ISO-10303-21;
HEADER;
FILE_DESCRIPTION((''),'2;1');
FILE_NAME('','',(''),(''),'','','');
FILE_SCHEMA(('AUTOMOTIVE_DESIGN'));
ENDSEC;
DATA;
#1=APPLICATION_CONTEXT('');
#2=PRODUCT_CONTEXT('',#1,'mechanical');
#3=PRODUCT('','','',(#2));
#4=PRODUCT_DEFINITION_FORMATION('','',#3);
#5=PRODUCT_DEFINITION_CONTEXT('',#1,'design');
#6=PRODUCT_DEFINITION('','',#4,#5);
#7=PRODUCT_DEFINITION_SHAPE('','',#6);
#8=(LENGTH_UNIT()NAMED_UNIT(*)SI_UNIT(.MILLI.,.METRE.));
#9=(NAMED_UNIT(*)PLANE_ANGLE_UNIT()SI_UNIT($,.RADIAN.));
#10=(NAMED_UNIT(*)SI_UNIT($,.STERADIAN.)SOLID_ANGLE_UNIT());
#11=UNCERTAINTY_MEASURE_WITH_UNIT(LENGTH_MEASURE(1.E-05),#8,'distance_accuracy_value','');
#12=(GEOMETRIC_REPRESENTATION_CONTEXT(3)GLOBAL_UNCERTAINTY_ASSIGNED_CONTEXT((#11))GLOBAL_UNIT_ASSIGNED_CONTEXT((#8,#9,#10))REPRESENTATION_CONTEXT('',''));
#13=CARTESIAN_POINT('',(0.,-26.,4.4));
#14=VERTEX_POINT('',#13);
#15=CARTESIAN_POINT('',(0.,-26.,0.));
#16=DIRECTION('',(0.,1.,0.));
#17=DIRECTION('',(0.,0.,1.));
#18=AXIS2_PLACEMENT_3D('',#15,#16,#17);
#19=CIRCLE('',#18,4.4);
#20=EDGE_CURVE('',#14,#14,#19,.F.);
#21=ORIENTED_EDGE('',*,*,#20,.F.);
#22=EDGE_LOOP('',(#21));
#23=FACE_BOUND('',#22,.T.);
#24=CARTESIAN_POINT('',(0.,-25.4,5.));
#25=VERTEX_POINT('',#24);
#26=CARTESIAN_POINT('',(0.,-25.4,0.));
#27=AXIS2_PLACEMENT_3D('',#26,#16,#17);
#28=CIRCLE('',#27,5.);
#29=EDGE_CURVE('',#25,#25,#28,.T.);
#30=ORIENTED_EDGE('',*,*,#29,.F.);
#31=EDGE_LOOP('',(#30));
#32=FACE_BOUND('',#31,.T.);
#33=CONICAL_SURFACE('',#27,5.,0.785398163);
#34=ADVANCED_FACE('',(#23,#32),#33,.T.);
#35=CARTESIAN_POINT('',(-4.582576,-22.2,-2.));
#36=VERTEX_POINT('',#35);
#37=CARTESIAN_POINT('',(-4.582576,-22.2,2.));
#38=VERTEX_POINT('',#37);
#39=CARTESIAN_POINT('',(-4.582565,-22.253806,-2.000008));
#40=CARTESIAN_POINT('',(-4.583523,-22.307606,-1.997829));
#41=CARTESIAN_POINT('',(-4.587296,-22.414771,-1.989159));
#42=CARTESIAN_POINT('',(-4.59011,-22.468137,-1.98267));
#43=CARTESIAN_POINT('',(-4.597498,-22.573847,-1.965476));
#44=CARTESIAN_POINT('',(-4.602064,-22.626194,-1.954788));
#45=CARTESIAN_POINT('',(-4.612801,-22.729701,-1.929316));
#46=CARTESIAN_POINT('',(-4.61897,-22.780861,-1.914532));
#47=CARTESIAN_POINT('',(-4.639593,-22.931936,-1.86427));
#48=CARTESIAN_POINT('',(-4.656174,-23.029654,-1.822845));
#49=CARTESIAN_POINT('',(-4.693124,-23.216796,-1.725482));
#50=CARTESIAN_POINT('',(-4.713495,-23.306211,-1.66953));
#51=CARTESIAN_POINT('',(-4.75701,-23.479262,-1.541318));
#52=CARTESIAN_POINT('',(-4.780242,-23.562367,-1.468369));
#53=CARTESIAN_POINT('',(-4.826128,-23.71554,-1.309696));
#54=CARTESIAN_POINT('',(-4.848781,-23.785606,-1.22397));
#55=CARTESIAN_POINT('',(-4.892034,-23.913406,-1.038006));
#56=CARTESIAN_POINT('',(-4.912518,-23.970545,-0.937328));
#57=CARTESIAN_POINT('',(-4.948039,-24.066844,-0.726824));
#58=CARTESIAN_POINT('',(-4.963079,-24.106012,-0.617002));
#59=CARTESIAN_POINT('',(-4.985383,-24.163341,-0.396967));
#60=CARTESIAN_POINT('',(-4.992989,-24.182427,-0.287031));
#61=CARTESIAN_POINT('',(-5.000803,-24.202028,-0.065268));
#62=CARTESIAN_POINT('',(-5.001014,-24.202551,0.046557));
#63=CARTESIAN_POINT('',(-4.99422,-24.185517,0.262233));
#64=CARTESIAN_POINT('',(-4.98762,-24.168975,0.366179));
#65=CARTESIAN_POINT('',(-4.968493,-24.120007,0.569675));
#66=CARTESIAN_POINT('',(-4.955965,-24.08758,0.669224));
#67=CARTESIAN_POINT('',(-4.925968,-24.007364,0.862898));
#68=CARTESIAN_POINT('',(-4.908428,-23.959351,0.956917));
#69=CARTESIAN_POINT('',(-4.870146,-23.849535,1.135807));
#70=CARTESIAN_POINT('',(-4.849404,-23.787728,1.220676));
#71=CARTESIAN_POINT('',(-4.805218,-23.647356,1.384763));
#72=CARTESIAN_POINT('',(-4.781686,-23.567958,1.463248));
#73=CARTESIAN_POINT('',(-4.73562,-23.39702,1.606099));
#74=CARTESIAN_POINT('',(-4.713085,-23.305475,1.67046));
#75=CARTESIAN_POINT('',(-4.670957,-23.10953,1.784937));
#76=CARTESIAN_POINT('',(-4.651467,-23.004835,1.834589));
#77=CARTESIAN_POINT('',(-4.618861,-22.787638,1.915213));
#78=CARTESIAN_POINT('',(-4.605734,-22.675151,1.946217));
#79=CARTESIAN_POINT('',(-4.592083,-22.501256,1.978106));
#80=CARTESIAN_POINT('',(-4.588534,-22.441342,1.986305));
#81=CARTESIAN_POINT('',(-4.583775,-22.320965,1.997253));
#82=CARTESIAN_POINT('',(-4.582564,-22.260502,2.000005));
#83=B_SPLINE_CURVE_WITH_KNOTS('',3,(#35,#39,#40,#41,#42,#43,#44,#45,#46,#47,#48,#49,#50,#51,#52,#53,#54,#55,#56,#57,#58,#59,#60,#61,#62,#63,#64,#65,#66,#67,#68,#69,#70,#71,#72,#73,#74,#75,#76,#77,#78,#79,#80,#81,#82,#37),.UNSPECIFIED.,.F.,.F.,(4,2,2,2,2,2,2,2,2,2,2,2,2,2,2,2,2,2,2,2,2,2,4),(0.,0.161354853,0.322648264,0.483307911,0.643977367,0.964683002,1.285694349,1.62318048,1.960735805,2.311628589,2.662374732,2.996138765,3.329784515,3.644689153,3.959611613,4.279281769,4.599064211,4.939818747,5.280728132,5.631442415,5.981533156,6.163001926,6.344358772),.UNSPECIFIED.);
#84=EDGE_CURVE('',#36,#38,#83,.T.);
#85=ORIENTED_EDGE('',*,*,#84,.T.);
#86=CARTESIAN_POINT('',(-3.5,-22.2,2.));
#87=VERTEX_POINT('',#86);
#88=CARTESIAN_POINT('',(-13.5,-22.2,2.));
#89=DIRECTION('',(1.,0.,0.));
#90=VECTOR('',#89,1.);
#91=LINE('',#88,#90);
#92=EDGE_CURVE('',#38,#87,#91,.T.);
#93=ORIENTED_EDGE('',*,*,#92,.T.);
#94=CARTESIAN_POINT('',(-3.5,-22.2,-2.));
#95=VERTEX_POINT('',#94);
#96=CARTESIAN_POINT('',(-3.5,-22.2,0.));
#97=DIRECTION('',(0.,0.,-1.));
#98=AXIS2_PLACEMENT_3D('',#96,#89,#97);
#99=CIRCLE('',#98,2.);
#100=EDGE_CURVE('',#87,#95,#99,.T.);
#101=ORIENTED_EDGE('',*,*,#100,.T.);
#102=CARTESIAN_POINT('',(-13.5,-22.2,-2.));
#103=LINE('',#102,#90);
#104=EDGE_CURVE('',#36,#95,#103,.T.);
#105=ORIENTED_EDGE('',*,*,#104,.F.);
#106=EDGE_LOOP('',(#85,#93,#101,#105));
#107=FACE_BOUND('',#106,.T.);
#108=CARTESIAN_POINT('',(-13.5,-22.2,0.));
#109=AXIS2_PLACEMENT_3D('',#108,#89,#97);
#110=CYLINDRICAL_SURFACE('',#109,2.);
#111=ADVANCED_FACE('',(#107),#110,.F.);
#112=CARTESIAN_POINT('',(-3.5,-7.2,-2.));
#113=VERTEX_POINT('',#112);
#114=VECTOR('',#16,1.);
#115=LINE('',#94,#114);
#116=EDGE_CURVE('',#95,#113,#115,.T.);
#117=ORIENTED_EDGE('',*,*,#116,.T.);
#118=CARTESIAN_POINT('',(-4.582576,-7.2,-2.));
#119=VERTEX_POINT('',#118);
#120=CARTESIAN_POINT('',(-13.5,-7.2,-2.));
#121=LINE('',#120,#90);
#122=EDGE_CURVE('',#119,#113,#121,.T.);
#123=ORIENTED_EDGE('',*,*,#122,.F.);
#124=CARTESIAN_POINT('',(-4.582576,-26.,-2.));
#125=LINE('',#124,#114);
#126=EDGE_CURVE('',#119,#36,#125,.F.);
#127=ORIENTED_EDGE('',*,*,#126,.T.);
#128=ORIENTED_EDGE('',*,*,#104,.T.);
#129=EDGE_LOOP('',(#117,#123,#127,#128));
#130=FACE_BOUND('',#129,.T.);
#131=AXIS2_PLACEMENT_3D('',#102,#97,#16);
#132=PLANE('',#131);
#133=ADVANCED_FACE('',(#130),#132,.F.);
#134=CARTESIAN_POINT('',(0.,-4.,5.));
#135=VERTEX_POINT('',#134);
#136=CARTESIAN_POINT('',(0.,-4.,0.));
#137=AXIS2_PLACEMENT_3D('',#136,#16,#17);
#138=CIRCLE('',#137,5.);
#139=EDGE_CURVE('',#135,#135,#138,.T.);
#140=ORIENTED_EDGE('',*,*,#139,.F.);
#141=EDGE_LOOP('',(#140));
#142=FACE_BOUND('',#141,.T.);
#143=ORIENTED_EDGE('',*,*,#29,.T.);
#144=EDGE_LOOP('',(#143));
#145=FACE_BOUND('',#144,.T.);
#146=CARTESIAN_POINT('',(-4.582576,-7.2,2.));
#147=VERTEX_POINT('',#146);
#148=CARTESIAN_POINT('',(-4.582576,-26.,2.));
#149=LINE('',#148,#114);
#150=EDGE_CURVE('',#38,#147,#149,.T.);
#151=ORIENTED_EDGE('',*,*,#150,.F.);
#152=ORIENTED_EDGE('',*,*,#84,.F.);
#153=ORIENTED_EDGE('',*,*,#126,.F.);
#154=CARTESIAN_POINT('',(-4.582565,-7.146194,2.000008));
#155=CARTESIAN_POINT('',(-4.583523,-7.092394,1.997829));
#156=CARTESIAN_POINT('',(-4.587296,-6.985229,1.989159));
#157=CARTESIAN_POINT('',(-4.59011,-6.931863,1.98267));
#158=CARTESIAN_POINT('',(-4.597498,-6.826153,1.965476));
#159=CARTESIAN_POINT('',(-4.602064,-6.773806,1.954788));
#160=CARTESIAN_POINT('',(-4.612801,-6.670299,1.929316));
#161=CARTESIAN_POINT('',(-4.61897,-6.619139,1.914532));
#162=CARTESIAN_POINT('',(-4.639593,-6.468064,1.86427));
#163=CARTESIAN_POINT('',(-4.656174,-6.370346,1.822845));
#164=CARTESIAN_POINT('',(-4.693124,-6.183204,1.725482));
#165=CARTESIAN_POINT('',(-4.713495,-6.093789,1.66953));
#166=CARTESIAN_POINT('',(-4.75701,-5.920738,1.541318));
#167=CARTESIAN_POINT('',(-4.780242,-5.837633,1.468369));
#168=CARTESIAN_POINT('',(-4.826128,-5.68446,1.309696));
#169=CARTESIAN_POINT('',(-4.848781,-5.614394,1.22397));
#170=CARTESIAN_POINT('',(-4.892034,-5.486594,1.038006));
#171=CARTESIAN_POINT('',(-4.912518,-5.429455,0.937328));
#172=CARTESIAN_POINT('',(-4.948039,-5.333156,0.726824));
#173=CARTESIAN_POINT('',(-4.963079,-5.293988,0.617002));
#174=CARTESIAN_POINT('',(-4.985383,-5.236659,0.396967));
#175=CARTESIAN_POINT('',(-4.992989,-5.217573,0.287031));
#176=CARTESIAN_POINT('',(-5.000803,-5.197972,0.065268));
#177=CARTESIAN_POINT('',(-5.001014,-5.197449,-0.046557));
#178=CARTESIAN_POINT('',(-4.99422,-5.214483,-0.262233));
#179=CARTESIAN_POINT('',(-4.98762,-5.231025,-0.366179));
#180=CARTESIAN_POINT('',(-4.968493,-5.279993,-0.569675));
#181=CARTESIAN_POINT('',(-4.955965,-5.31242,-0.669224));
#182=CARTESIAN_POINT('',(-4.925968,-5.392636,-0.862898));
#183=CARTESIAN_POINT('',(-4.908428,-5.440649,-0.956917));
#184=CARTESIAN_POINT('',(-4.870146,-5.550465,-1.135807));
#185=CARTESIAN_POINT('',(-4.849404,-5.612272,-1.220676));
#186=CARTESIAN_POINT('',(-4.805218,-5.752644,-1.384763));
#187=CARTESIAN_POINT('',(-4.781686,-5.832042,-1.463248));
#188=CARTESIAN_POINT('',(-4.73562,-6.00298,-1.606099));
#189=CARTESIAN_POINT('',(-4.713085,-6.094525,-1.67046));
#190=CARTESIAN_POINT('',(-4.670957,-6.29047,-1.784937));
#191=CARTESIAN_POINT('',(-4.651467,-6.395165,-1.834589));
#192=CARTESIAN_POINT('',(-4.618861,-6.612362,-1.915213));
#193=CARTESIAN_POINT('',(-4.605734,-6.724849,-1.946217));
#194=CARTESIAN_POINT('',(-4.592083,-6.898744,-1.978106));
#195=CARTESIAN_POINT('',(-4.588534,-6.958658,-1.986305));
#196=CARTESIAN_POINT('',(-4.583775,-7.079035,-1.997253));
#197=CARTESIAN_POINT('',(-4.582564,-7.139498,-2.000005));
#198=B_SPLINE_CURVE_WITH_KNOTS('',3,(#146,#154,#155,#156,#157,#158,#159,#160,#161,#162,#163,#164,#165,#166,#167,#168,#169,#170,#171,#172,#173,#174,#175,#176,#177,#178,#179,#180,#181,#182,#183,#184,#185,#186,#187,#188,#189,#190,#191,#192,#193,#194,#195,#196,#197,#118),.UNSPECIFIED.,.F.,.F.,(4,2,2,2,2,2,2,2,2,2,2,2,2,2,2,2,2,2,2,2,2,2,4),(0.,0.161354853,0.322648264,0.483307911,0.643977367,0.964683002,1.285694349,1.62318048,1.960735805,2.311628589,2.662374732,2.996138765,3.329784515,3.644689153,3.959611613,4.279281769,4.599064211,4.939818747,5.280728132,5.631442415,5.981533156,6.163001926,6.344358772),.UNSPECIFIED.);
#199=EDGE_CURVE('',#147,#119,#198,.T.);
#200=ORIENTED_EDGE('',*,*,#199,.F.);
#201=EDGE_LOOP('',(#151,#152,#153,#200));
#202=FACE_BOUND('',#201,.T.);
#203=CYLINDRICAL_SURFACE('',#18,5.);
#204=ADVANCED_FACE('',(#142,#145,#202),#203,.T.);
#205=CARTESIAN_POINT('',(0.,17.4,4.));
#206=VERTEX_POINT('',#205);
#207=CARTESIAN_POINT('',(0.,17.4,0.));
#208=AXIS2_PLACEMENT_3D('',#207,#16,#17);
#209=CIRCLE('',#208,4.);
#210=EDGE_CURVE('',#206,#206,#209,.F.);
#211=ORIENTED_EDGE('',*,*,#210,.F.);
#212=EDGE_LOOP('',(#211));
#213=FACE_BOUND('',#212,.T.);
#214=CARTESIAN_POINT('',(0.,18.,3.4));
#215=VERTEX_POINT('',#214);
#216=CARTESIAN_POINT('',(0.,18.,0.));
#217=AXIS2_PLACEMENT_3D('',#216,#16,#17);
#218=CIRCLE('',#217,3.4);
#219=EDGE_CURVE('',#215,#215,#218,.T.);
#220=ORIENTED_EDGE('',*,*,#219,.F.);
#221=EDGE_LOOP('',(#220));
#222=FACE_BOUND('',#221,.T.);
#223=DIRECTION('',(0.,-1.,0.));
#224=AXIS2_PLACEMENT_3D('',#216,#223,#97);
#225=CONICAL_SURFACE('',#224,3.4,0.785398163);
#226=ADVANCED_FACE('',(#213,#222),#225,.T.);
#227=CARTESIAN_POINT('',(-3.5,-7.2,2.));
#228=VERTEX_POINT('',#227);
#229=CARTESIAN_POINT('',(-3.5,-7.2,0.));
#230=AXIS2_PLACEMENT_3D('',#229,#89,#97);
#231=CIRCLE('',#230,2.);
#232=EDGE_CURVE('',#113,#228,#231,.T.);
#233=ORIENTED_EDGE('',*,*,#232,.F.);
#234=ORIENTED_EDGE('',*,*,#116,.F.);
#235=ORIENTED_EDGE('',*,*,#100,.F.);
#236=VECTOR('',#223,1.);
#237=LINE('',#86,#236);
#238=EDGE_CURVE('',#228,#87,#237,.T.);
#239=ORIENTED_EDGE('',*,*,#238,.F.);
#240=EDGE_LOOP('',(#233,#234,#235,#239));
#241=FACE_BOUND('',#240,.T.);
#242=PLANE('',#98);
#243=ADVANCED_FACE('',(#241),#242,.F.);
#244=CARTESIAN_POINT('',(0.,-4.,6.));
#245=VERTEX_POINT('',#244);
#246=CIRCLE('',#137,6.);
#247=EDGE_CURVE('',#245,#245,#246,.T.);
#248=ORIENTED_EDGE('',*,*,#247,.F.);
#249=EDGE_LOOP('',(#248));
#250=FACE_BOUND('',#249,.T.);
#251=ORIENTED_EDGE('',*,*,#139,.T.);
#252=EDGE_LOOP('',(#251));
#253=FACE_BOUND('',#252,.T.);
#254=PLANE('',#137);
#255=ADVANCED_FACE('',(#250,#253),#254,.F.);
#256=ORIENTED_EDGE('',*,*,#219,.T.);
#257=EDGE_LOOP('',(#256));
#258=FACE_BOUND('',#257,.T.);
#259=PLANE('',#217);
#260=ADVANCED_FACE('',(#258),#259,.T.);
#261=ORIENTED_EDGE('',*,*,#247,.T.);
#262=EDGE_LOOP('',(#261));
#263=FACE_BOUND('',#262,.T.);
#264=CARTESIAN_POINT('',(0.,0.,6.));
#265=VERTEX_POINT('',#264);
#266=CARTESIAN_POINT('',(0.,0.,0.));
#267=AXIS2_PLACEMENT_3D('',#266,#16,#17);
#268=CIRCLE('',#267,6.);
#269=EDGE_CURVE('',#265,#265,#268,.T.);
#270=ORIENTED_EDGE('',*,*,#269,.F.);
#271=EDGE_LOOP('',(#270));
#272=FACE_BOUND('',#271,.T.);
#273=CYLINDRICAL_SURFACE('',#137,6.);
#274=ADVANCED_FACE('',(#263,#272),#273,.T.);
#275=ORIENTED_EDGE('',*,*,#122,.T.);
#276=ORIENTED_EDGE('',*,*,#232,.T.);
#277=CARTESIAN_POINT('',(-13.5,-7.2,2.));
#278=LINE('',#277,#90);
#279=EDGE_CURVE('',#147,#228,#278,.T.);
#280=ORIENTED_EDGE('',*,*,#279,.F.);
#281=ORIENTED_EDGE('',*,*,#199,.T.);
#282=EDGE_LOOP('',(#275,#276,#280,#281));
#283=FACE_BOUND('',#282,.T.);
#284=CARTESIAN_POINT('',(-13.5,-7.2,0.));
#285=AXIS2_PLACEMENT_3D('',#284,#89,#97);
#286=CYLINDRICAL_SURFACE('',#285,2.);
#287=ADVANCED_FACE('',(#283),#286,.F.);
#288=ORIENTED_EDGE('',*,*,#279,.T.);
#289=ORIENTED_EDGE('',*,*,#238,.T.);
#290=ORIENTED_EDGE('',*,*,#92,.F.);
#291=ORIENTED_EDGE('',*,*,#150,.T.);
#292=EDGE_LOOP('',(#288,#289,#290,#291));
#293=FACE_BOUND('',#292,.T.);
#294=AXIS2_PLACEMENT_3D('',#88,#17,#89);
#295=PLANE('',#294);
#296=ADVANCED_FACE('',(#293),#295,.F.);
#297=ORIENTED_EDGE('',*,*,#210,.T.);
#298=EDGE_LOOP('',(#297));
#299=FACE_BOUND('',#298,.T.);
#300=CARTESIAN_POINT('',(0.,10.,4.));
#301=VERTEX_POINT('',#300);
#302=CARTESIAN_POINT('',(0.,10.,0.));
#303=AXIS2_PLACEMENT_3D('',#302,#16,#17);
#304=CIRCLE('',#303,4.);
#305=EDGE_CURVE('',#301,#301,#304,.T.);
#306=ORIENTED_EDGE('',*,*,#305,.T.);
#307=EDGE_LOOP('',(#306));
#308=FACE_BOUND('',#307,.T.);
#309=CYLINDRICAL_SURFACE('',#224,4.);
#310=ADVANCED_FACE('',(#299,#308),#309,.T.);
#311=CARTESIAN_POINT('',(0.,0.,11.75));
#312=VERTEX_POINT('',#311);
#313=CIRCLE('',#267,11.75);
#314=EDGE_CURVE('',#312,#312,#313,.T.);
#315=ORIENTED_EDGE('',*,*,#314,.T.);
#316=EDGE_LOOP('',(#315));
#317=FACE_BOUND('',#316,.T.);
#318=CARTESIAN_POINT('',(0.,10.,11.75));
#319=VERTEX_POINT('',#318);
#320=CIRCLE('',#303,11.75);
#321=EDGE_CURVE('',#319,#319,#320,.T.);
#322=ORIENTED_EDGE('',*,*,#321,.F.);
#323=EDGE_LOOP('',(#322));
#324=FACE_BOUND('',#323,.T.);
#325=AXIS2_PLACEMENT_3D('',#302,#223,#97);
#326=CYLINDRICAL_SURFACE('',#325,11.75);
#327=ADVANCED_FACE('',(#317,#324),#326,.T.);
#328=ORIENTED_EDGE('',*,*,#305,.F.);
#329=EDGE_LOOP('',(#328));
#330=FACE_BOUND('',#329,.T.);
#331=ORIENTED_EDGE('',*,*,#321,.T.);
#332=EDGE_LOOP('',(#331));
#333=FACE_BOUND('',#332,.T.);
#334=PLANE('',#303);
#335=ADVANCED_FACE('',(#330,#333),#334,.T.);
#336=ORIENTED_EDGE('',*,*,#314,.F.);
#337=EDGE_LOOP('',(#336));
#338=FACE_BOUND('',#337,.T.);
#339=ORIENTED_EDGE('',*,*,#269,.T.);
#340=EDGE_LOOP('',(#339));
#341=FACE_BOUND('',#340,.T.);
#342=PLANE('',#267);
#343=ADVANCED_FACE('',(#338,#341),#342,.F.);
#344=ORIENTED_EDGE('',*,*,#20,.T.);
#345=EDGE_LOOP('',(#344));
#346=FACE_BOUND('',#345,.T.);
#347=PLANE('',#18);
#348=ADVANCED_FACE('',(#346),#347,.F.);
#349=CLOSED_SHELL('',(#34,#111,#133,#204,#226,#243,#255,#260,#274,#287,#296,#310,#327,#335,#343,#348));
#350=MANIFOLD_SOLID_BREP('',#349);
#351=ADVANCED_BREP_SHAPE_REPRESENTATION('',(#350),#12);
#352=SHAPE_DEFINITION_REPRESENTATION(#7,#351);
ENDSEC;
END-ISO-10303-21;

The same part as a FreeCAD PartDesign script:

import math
import FreeCAD as App
import Part
import Sketcher
Q = App.Units.Quantity


def edges_at(feature, points):
    """Names of the edges that pass closest to the given points."""
    edges = feature.Shape.Edges
    near = lambda p: min(range(len(edges)), key=lambda i: edges[i].distToShape(Part.Vertex(*p))[0])
    return sorted({f"Edge{near(p) + 1}" for p in points})

doc = App.newDocument("Part")
body = doc.addObject("PartDesign::Body", "Body")

sketch1 = body.newObject("Sketcher::SketchObject", "Sketch")
sketch1.AttachmentSupport = (doc.getObject("XZ_Plane"), [""])
sketch1.MapMode = "FlatFace"
sketch1.addGeometry(Part.Circle(App.Vector(0, 0, 0), App.Vector(0, 0, 1), 12), False)
sketch1.addConstraint([
    Sketcher.Constraint("Coincident", 0, 3, -1, 1),
    Sketcher.Constraint("Diameter", 0, Q("23.5 mm")),
])
pad1 = body.newObject("PartDesign::Pad", "Pad")
pad1.Profile = sketch1
pad1.Length = 10
pad1.Reversed = True

sketch2 = body.newObject("Sketcher::SketchObject", "Sketch001")
sketch2.AttachmentSupport = (doc.getObject("XZ_Plane"), [""])
sketch2.MapMode = "FlatFace"
sketch2.addGeometry(Part.Circle(App.Vector(0, 0, 0), App.Vector(0, 0, 1), 6), False)
sketch2.addConstraint([
    Sketcher.Constraint("Coincident", 0, 3, -1, 1),
    Sketcher.Constraint("Diameter", 0, Q("12 mm")),
])
pad2 = body.newObject("PartDesign::Pad", "Pad001")
pad2.Profile = sketch2
pad2.Length = 4

sketch3 = body.newObject("Sketcher::SketchObject", "Sketch002")
sketch3.AttachmentSupport = (doc.getObject("XZ_Plane"), [""])
sketch3.MapMode = "FlatFace"
sketch3.addGeometry(Part.Circle(App.Vector(0, 0, 0), App.Vector(0, 0, 1), 5), False)
sketch3.addConstraint([
    Sketcher.Constraint("Coincident", 0, 3, -1, 1),
    Sketcher.Constraint("Diameter", 0, Q("10 mm")),
])
pad3 = body.newObject("PartDesign::Pad", "Pad002")
pad3.Profile = sketch3
pad3.Length = 26
doc.recompute()

chamfer = body.newObject("PartDesign::Chamfer", "Chamfer")
chamfer.Base = (pad3, edges_at(pad3, [(0, -26, -5)]))
chamfer.Size = 0.6

sketch4 = body.newObject("Sketcher::SketchObject", "Sketch003")
sketch4.AttachmentSupport = (doc.getObject("XZ_Plane"), [""])
sketch4.MapMode = "FlatFace"
sketch4.AttachmentOffset = App.Placement(App.Vector(0, 0, -10), App.Rotation())
sketch4.addGeometry(Part.Circle(App.Vector(0, 0, 0), App.Vector(0, 0, 1), 4), False)
sketch4.addConstraint([
    Sketcher.Constraint("Coincident", 0, 3, -1, 1),
    Sketcher.Constraint("Diameter", 0, Q("8 mm")),
])
pad4 = body.newObject("PartDesign::Pad", "Pad003")
pad4.Profile = sketch4
pad4.Length = 8
pad4.Reversed = True
doc.recompute()

chamfer2 = body.newObject("PartDesign::Chamfer", "Chamfer001")
chamfer2.Base = (pad4, edges_at(pad4, [(0, 18, -4)]))
chamfer2.Size = 0.6

sketch5 = body.newObject("Sketcher::SketchObject", "Sketch004")
sketch5.AttachmentSupport = (doc.getObject("YZ_Plane"), [""])
sketch5.MapMode = "FlatFace"
sketch5.AttachmentOffset = App.Placement(App.Vector(0, 0, -3.5), App.Rotation())
sketch5.addGeometry([
    Part.LineSegment(App.Vector(-7.2, 2, 0), App.Vector(-22.2, 2, 0)),
    Part.ArcOfCircle(Part.Circle(App.Vector(-22.2, 0, 0), App.Vector(0, 0, 1), 2), math.radians(90), math.radians(270)),
    Part.LineSegment(App.Vector(-22.2, -2, 0), App.Vector(-7.2, -2, 0)),
    Part.ArcOfCircle(Part.Circle(App.Vector(-7.2, 0, 0), App.Vector(0, 0, 1), 2), math.radians(-90), math.radians(90)),
], False)
sketch5.addConstraint([
    Sketcher.Constraint("Tangent", 0, 2, 1, 1),
    Sketcher.Constraint("Tangent", 1, 2, 2, 1),
    Sketcher.Constraint("Tangent", 2, 2, 3, 1),
    Sketcher.Constraint("Tangent", 3, 2, 0, 1),
    Sketcher.Constraint("Horizontal", 0),
    Sketcher.Constraint("Horizontal", 2),
    Sketcher.Constraint("PointOnObject", 1, 3, -1),
    Sketcher.Constraint("Radius", 1, Q("2 mm")),
    Sketcher.Constraint("DistanceX", 0, 2, 0, 1, Q("15 mm")),
    Sketcher.Constraint("DistanceX", 1, 3, -1, 1, Q("22.2 mm")),
])
pocket1 = body.newObject("PartDesign::Pocket", "Pocket")
pocket1.Profile = sketch5
pocket1.Length = 10

doc.recompute()
